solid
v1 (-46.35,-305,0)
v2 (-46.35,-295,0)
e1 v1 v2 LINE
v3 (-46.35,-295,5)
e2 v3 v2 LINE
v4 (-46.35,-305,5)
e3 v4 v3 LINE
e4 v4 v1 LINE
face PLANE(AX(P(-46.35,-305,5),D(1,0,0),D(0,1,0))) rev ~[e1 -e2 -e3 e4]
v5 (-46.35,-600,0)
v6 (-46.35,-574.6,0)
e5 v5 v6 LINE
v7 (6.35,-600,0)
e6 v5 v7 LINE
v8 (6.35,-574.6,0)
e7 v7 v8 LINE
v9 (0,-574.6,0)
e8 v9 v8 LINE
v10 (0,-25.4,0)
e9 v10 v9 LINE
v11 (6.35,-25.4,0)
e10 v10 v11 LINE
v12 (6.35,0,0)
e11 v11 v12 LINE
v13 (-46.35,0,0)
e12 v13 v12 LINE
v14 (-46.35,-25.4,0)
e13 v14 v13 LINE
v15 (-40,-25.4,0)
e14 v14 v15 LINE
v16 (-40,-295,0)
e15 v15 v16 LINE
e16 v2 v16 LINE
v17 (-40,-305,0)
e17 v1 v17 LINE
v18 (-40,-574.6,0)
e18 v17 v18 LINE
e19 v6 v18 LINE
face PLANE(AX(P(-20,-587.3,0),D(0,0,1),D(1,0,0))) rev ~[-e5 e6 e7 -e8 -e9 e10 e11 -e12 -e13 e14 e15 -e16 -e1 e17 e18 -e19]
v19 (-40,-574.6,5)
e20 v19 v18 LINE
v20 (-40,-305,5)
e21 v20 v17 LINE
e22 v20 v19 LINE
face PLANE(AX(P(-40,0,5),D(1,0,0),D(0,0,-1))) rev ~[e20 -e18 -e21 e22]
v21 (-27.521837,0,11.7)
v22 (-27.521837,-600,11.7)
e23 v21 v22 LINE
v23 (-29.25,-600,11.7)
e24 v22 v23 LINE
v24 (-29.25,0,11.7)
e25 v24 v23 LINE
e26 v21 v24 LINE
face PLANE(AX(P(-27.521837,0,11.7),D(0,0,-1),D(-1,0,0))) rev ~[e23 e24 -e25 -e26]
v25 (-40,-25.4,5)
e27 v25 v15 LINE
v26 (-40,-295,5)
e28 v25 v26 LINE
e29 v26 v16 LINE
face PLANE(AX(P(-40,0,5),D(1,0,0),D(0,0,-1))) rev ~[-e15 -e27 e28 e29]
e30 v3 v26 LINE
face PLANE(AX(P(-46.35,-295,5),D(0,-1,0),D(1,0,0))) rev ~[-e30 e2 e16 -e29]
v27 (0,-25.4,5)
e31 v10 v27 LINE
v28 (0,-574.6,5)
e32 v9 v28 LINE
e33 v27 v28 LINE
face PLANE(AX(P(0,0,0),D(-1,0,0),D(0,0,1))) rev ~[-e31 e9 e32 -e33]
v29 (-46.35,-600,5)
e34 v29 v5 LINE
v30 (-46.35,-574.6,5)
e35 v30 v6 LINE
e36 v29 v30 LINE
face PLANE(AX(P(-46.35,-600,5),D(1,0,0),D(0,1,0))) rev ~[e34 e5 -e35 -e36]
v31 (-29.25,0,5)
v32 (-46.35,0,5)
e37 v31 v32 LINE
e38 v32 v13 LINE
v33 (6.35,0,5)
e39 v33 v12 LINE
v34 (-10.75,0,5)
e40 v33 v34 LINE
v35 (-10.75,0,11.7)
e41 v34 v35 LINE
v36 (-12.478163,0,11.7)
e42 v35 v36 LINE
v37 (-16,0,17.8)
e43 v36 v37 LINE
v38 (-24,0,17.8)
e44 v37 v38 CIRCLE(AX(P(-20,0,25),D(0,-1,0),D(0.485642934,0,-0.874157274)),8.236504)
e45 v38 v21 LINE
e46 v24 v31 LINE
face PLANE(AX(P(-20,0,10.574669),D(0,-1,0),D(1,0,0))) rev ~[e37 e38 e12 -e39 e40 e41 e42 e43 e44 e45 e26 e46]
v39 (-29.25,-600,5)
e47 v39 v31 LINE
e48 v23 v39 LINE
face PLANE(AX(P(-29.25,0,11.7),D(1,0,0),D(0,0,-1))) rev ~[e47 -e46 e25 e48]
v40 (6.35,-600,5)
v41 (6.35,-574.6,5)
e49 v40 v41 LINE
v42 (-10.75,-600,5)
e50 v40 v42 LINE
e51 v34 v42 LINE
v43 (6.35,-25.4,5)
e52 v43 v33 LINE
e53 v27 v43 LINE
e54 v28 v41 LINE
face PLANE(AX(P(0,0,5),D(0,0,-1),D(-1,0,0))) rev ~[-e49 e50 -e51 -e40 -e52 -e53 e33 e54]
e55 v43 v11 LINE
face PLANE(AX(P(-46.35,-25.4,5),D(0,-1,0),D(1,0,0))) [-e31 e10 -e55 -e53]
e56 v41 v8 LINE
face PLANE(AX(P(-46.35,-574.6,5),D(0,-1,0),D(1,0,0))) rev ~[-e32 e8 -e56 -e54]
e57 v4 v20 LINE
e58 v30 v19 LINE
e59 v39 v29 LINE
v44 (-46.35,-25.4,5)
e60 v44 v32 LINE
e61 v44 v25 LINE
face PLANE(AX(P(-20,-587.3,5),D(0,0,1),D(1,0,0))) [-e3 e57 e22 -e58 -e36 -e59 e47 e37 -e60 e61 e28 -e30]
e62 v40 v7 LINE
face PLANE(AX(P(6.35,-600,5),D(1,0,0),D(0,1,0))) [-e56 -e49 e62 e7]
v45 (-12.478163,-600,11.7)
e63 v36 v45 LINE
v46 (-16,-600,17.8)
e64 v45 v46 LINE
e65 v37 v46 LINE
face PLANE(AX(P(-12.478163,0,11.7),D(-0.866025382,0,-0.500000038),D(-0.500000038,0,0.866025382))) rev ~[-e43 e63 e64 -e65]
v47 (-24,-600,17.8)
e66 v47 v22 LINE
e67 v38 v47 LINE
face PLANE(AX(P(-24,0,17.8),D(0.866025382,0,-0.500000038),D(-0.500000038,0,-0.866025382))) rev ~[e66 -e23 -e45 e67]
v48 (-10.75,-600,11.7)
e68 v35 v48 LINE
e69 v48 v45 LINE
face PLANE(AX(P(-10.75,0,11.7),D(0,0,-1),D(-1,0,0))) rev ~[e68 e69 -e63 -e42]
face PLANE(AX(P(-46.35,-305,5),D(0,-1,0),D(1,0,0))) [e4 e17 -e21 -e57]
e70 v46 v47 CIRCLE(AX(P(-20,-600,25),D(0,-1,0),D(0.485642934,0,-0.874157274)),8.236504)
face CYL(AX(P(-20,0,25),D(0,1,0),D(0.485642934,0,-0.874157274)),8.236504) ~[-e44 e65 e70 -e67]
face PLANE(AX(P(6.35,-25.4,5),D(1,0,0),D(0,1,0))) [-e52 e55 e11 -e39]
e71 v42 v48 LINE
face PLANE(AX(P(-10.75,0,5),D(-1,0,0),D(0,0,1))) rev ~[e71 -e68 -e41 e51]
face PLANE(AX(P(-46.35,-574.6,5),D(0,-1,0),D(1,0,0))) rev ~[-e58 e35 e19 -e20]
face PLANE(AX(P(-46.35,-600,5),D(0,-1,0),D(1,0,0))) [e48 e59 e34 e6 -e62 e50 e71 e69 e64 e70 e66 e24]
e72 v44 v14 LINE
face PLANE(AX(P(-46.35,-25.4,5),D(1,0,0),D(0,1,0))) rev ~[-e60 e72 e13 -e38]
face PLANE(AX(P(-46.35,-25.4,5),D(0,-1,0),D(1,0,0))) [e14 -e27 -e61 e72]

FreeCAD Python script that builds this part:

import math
import FreeCAD as App
import Part
import Sketcher

V = App.Vector
Q = App.Units.Quantity


def add_polygon(sketch, points):
    """Adds a closed chain of lines whose ends are joined by coincident constraints."""
    first, n = sketch.GeometryCount, len(points)
    for a, b in zip(points, points[1:] + points[:1]):
        sketch.addGeometry(Part.LineSegment(App.Vector(*a, 0), App.Vector(*b, 0)), False)
    for i in range(n):
        sketch.addConstraint(Sketcher.Constraint("Coincident", first + i, 2, first + (i + 1) % n, 1))

doc = App.newDocument("Part")
body = doc.addObject("PartDesign::Body", "Body")

# Sketch on XZ plane
sketch1 = body.newObject("Sketcher::SketchObject", "Sketch")
sketch1.AttachmentSupport = (doc.getObject("XZ_Plane"), [""])
sketch1.MapMode = "FlatFace"
sketch1.addGeometry([
    Part.LineSegment(V(-40, 0, 0), V(0, 0, 0)),  # 0
    Part.LineSegment(V(0, 0, 0), V(0, 5, 0)),  # 1
    Part.LineSegment(V(0, 5, 0), V(-10.8, 5, 0)),  # 2
    Part.LineSegment(V(-10.8, 5, 0), V(-10.8, 11.7, 0)),  # 3
    Part.LineSegment(V(-10.8, 11.7, 0), V(-12.5, 11.7, 0)),  # 4
    Part.LineSegment(V(-12.5, 11.7, 0), V(-16, 17.8, 0)),  # 5
    Part.ArcOfCircle(Part.Circle(V(-20, 25, 0), V(0, 0, 1), 8.2), math.radians(-61), math.radians(241)),  # 6
    Part.LineSegment(V(-24, 17.8, 0), V(-27.5, 11.7, 0)),  # 7
    Part.LineSegment(V(-27.5, 11.7, 0), V(-29.2, 11.7, 0)),  # 8
    Part.LineSegment(V(-29.2, 11.7, 0), V(-29.2, 5, 0)),  # 9
    Part.LineSegment(V(-29.2, 5, 0), V(-40, 5, 0)),  # 10
    Part.LineSegment(V(-40, 5, 0), V(-40, 0, 0)),  # 11
], False)
sketch1.addConstraint([
    Sketcher.Constraint("Coincident", 0, 2, 1, 1),
    Sketcher.Constraint("Coincident", 1, 2, 2, 1),
    Sketcher.Constraint("Coincident", 2, 2, 3, 1),
    Sketcher.Constraint("Coincident", 3, 2, 4, 1),
    Sketcher.Constraint("Coincident", 4, 2, 5, 1),
    Sketcher.Constraint("Coincident", 5, 2, 6, 1),
    Sketcher.Constraint("Coincident", 6, 2, 7, 1),
    Sketcher.Constraint("Coincident", 7, 2, 8, 1),
    Sketcher.Constraint("Coincident", 8, 2, 9, 1),
    Sketcher.Constraint("Coincident", 9, 2, 10, 1),
    Sketcher.Constraint("Coincident", 10, 2, 11, 1),
    Sketcher.Constraint("Coincident", 11, 2, 0, 1),
    Sketcher.Constraint("Horizontal", 0),
    Sketcher.Constraint("Vertical", 1),
    Sketcher.Constraint("Horizontal", 2),
    Sketcher.Constraint("Vertical", 3),
    Sketcher.Constraint("Horizontal", 4),
    Sketcher.Constraint("Horizontal", 8),
    Sketcher.Constraint("Vertical", 9),
    Sketcher.Constraint("Horizontal", 10),
    Sketcher.Constraint("Vertical", 11),
    Sketcher.Constraint("Coincident", 0, 2, -1, 1),
    Sketcher.Constraint("Horizontal", 5, 2, 6, 2),
    Sketcher.Constraint("Horizontal", 4, 2, 7, 2),
    Sketcher.Constraint("Horizontal", 2, 2, 9, 2),
    Sketcher.Constraint("Equal", 4, 8),
    Sketcher.Constraint("Equal", 2, 10),
    Sketcher.Constraint("Equal", 5, 7),
    Sketcher.Constraint("DistanceX", 0, 1, 0, 2, Q("40 mm")),
    Sketcher.Constraint("DistanceY", 1, 1, 1, 2, Q("5 mm")),
    Sketcher.Constraint("Angle", 5, Q("120.000003 deg")),
    Sketcher.Constraint("DistanceY", 3, 1, 3, 2, Q("6.7 mm")),
    Sketcher.Constraint("DistanceY", -1, 1, 6, 3, Q("25 mm")),
    Sketcher.Constraint("DistanceX", 5, 2, -1, 1, Q("16 mm")),
    Sketcher.Constraint("DistanceX", 2, 2, 2, 1, Q("10.75 mm")),
    Sketcher.Constraint("DistanceY", -1, 1, 5, 2, Q("17.8 mm")),
])
pad1 = body.newObject("PartDesign::Pad", "Pad")
pad1.Profile = sketch1
pad1.Length = 600

# Sketch on XY plane
sketch2 = body.newObject("Sketcher::SketchObject", "Sketch001")
sketch2.AttachmentSupport = (doc.getObject("XY_Plane"), [""])
sketch2.MapMode = "FlatFace"
sketch2.AttachmentOffset = App.Placement(V(0, 0, 5), App.Rotation())
add_polygon(sketch2, [(-46, -575), (-46, -600), (6, -600), (6, -575)])  # lines 0-3
add_polygon(sketch2, [(-46, 0), (-46, -25), (6, -25), (6, 0)])  # lines 4-7
sketch2.addConstraint([
    Sketcher.Constraint("Vertical", 0),
    Sketcher.Constraint("Horizontal", 1),
    Sketcher.Constraint("Vertical", 2),
    Sketcher.Constraint("Horizontal", 3),
    Sketcher.Constraint("Vertical", 4),
    Sketcher.Constraint("Horizontal", 5),
    Sketcher.Constraint("Vertical", 6),
    Sketcher.Constraint("Horizontal", 7),
    Sketcher.Constraint("PointOnObject", 6, 2, -1),
    Sketcher.Constraint("Vertical", 3, 2, 4, 2),
    Sketcher.Constraint("Vertical", 2, 2, 5, 2),
    Sketcher.Constraint("Equal", 2, 4),
    Sketcher.Constraint("DistanceX", 1, 1, 1, 2, Q("52.7 mm")),
    Sketcher.Constraint("DistanceY", 0, 2, 0, 1, Q("25.4 mm")),
    Sketcher.Constraint("DistanceY", 0, 2, -1, 1, Q("600 mm")),
    Sketcher.Constraint("DistanceX", 0, 2, -1, 1, Q("46.35 mm")),
])
pad2 = body.newObject("PartDesign::Pad", "Pad001")
pad2.Profile = sketch2
pad2.Type = "UpToLast"
pad2.Reversed = True

# Sketch on XY plane
sketch3 = body.newObject("Sketcher::SketchObject", "Sketch002")
sketch3.AttachmentSupport = (doc.getObject("XY_Plane"), [""])
sketch3.MapMode = "FlatFace"
sketch3.AttachmentOffset = App.Placement(V(0, 0, 5), App.Rotation())
add_polygon(sketch3, [(-46, -295), (-46, -305), (-40, -305), (-40, -295)])  # lines 0-3
sketch3.addConstraint([
    Sketcher.Constraint("Vertical", 0),
    Sketcher.Constraint("Horizontal", 1),
    Sketcher.Constraint("Vertical", 2),
    Sketcher.Constraint("Horizontal", 3),
    Sketcher.Constraint("DistanceY", 0, 2, 0, 1, Q("10 mm")),
    Sketcher.Constraint("DistanceY", 0, 2, -1, 1, Q("305 mm")),
    Sketcher.Constraint("DistanceX", 1, 2, -1, 1, Q("40 mm")),
    Sketcher.Constraint("DistanceX", 1, 1, 1, 2, Q("6.35 mm")),
])
pad3 = body.newObject("PartDesign::Pad", "Pad002")
pad3.Profile = sketch3
pad3.Length = 5
pad3.Reversed = True

doc.recompute()
